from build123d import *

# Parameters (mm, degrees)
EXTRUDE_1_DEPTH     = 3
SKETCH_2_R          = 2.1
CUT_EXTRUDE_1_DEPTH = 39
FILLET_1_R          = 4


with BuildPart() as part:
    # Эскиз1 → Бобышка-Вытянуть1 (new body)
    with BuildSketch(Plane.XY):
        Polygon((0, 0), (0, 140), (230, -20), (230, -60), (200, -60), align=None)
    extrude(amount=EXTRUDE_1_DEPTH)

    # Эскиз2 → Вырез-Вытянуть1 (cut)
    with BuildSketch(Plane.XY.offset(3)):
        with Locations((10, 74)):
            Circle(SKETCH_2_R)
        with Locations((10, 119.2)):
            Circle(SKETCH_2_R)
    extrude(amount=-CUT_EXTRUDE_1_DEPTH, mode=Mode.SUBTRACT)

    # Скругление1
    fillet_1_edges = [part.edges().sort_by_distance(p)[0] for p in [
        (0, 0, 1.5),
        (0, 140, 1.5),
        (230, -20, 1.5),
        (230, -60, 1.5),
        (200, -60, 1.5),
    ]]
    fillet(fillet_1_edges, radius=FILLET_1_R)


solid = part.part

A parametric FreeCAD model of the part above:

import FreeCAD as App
import Part
import Sketcher


def edges_at(feature, points):
    """Names of the edges that pass closest to the given points."""
    edges = feature.Shape.Edges
    near = lambda p: min(range(len(edges)), key=lambda i: edges[i].distToShape(Part.Vertex(*p))[0])
    return sorted({f"Edge{near(p) + 1}" for p in points})

doc = App.newDocument("Part")
body = doc.addObject("PartDesign::Body", "Body")

# Sketch on XY plane
sketch1 = body.newObject("Sketcher::SketchObject", "Sketch")
sketch1.AttachmentSupport = (doc.getObject("XY_Plane"), [""])
sketch1.MapMode = "FlatFace"
sketch1.addGeometry([
    Part.LineSegment(App.Vector(0, 140, 0), App.Vector(0, 0, 0)),  # 0
    Part.LineSegment(App.Vector(0, 0, 0), App.Vector(200, -60, 0)),  # 1
    Part.LineSegment(App.Vector(200, -60, 0), App.Vector(230, -60, 0)),  # 2
    Part.LineSegment(App.Vector(230, -60, 0), App.Vector(230, -20, 0)),  # 3
    Part.LineSegment(App.Vector(230, -20, 0), App.Vector(0, 140, 0)),  # 4
], False)
sketch1.addConstraint([
    Sketcher.Constraint("Coincident", 0, 2, 1, 1),
    Sketcher.Constraint("Coincident", 1, 2, 2, 1),
    Sketcher.Constraint("Coincident", 2, 2, 3, 1),
    Sketcher.Constraint("Coincident", 3, 2, 4, 1),
    Sketcher.Constraint("Coincident", 4, 2, 0, 1),
    Sketcher.Constraint("Vertical", 0),
    Sketcher.Constraint("Horizontal", 2),
    Sketcher.Constraint("Vertical", 3),
    Sketcher.Constraint("Coincident", 0, 2, -1, 1),
    Sketcher.Constraint("DistanceX", 2, 1, 2, 2, 30.0),
    Sketcher.Constraint("DistanceY", 0, 2, 0, 1, 140.0),
    Sketcher.Constraint("DistanceY", 3, 1, 3, 2, 40.0),
    Sketcher.Constraint("DistanceX", -1, 1, 1, 2, 200.0),
    Sketcher.Constraint("DistanceY", 1, 2, -1, 1, 60.0),
])
pad1 = body.newObject("PartDesign::Pad", "Pad")
pad1.Profile = sketch1
pad1.Length = 3

# Sketch on XY plane
sketch2 = body.newObject("Sketcher::SketchObject", "Sketch001")
sketch2.AttachmentSupport = (doc.getObject("XY_Plane"), [""])
sketch2.MapMode = "FlatFace"
sketch2.AttachmentOffset = App.Placement(App.Vector(0, 0, 3), App.Rotation())
sketch2.addGeometry([
    Part.Circle(App.Vector(10, 74, 0), App.Vector(0, 0, 1), 2.1),
    Part.Circle(App.Vector(10, 119.2, 0), App.Vector(0, 0, 1), 2.1),
], False)
sketch2.addConstraint([
    Sketcher.Constraint("Equal", 0, 1),
    Sketcher.Constraint("Vertical", 0, 3, 1, 3),
    Sketcher.Constraint("Diameter", 0, 4.2),
    Sketcher.Constraint("DistanceX", -1, 1, 0, 3, 10.0),
    Sketcher.Constraint("DistanceY", -1, 1, 0, 3, 74.0),
    Sketcher.Constraint("DistanceY", -1, 1, 1, 3, 119.2),
])
pocket1 = body.newObject("PartDesign::Pocket", "Pocket")
pocket1.Profile = sketch2
pocket1.Length = 39
doc.recompute()

fillet = body.newObject("PartDesign::Fillet", "Fillet")
fillet.Base = (pocket1, edges_at(pocket1, [
    (0, 0, 1.5),
    (0, 140, 1.5),
    (230, -20, 1.5),
    (230, -60, 1.5),
    (200, -60, 1.5),
]))
fillet.Radius = 4

doc.recompute()
